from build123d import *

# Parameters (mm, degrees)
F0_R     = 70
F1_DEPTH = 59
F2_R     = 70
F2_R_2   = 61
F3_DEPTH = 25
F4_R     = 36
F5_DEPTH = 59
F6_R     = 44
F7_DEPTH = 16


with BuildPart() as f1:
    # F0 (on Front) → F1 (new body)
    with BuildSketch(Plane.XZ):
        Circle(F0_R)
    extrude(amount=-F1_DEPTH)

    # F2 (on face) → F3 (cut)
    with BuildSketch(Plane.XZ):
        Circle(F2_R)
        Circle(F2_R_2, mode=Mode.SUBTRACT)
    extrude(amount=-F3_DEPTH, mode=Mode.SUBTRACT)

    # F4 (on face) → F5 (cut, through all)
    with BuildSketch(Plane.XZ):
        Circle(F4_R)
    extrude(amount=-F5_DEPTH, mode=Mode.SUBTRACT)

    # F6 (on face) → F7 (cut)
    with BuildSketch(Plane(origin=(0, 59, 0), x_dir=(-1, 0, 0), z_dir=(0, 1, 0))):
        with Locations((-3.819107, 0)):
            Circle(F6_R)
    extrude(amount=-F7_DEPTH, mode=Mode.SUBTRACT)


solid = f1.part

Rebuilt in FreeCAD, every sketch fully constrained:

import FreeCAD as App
import Part
import Sketcher
Q = App.Units.Quantity

doc = App.newDocument("Part")
body = doc.addObject("PartDesign::Body", "Body")

sketch1 = body.newObject("Sketcher::SketchObject", "Sketch")
sketch1.AttachmentSupport = (doc.getObject("XZ_Plane"), [""])
sketch1.MapMode = "FlatFace"
sketch1.addGeometry(Part.Circle(App.Vector(0, 0, 0), App.Vector(0, 0, 1), 70), False)
sketch1.addConstraint([
    Sketcher.Constraint("Coincident", 0, 3, -1, 1),
    Sketcher.Constraint("Diameter", 0, Q("140 mm")),
])
pad1 = body.newObject("PartDesign::Pad", "Pad")
pad1.Profile = sketch1
pad1.Length = 59
pad1.Reversed = True

sketch2 = body.newObject("Sketcher::SketchObject", "Sketch001")
sketch2.AttachmentSupport = (doc.getObject("XZ_Plane"), [""])
sketch2.MapMode = "FlatFace"
sketch2.addGeometry([
    Part.Circle(App.Vector(0, 0, 0), App.Vector(0, 0, 1), 70),
    Part.Circle(App.Vector(0, 0, 0), App.Vector(0, 0, 1), 61),
], False)
sketch2.addConstraint([
    Sketcher.Constraint("Coincident", 0, 3, -1, 1),
    Sketcher.Constraint("Coincident", 1, 3, -1, 1),
    Sketcher.Constraint("Diameter", 0, Q("140 mm")),
    Sketcher.Constraint("Diameter", 1, Q("122 mm")),
])
pocket1 = body.newObject("PartDesign::Pocket", "Pocket")
pocket1.Profile = sketch2
pocket1.Length = 25

sketch3 = body.newObject("Sketcher::SketchObject", "Sketch002")
sketch3.AttachmentSupport = (doc.getObject("XZ_Plane"), [""])
sketch3.MapMode = "FlatFace"
sketch3.addGeometry(Part.Circle(App.Vector(0, 0, 0), App.Vector(0, 0, 1), 36), False)
sketch3.addConstraint([
    Sketcher.Constraint("Coincident", 0, 3, -1, 1),
    Sketcher.Constraint("Diameter", 0, Q("72 mm")),
])
pocket2 = body.newObject("PartDesign::Pocket", "Pocket001")
pocket2.Profile = sketch3
pocket2.Type = "ThroughAll"

sketch4 = body.newObject("Sketcher::SketchObject", "Sketch003")
sketch4.AttachmentSupport = (doc.getObject("XZ_Plane"), [""])
sketch4.MapMode = "FlatFace"
sketch4.AttachmentOffset = App.Placement(App.Vector(0, 0, -59), App.Rotation())
sketch4.addGeometry(Part.Circle(App.Vector(3.819107, 0, 0), App.Vector(0, 0, 1), 44), False)
sketch4.addConstraint([
    Sketcher.Constraint("PointOnObject", 0, 3, -1),
    Sketcher.Constraint("Diameter", 0, Q("88 mm")),
    Sketcher.Constraint("DistanceX", -1, 1, 0, 3, Q("3.819107 mm")),
])
pocket3 = body.newObject("PartDesign::Pocket", "Pocket002")
pocket3.Profile = sketch4
pocket3.Length = 16
pocket3.Reversed = True

doc.recompute()
